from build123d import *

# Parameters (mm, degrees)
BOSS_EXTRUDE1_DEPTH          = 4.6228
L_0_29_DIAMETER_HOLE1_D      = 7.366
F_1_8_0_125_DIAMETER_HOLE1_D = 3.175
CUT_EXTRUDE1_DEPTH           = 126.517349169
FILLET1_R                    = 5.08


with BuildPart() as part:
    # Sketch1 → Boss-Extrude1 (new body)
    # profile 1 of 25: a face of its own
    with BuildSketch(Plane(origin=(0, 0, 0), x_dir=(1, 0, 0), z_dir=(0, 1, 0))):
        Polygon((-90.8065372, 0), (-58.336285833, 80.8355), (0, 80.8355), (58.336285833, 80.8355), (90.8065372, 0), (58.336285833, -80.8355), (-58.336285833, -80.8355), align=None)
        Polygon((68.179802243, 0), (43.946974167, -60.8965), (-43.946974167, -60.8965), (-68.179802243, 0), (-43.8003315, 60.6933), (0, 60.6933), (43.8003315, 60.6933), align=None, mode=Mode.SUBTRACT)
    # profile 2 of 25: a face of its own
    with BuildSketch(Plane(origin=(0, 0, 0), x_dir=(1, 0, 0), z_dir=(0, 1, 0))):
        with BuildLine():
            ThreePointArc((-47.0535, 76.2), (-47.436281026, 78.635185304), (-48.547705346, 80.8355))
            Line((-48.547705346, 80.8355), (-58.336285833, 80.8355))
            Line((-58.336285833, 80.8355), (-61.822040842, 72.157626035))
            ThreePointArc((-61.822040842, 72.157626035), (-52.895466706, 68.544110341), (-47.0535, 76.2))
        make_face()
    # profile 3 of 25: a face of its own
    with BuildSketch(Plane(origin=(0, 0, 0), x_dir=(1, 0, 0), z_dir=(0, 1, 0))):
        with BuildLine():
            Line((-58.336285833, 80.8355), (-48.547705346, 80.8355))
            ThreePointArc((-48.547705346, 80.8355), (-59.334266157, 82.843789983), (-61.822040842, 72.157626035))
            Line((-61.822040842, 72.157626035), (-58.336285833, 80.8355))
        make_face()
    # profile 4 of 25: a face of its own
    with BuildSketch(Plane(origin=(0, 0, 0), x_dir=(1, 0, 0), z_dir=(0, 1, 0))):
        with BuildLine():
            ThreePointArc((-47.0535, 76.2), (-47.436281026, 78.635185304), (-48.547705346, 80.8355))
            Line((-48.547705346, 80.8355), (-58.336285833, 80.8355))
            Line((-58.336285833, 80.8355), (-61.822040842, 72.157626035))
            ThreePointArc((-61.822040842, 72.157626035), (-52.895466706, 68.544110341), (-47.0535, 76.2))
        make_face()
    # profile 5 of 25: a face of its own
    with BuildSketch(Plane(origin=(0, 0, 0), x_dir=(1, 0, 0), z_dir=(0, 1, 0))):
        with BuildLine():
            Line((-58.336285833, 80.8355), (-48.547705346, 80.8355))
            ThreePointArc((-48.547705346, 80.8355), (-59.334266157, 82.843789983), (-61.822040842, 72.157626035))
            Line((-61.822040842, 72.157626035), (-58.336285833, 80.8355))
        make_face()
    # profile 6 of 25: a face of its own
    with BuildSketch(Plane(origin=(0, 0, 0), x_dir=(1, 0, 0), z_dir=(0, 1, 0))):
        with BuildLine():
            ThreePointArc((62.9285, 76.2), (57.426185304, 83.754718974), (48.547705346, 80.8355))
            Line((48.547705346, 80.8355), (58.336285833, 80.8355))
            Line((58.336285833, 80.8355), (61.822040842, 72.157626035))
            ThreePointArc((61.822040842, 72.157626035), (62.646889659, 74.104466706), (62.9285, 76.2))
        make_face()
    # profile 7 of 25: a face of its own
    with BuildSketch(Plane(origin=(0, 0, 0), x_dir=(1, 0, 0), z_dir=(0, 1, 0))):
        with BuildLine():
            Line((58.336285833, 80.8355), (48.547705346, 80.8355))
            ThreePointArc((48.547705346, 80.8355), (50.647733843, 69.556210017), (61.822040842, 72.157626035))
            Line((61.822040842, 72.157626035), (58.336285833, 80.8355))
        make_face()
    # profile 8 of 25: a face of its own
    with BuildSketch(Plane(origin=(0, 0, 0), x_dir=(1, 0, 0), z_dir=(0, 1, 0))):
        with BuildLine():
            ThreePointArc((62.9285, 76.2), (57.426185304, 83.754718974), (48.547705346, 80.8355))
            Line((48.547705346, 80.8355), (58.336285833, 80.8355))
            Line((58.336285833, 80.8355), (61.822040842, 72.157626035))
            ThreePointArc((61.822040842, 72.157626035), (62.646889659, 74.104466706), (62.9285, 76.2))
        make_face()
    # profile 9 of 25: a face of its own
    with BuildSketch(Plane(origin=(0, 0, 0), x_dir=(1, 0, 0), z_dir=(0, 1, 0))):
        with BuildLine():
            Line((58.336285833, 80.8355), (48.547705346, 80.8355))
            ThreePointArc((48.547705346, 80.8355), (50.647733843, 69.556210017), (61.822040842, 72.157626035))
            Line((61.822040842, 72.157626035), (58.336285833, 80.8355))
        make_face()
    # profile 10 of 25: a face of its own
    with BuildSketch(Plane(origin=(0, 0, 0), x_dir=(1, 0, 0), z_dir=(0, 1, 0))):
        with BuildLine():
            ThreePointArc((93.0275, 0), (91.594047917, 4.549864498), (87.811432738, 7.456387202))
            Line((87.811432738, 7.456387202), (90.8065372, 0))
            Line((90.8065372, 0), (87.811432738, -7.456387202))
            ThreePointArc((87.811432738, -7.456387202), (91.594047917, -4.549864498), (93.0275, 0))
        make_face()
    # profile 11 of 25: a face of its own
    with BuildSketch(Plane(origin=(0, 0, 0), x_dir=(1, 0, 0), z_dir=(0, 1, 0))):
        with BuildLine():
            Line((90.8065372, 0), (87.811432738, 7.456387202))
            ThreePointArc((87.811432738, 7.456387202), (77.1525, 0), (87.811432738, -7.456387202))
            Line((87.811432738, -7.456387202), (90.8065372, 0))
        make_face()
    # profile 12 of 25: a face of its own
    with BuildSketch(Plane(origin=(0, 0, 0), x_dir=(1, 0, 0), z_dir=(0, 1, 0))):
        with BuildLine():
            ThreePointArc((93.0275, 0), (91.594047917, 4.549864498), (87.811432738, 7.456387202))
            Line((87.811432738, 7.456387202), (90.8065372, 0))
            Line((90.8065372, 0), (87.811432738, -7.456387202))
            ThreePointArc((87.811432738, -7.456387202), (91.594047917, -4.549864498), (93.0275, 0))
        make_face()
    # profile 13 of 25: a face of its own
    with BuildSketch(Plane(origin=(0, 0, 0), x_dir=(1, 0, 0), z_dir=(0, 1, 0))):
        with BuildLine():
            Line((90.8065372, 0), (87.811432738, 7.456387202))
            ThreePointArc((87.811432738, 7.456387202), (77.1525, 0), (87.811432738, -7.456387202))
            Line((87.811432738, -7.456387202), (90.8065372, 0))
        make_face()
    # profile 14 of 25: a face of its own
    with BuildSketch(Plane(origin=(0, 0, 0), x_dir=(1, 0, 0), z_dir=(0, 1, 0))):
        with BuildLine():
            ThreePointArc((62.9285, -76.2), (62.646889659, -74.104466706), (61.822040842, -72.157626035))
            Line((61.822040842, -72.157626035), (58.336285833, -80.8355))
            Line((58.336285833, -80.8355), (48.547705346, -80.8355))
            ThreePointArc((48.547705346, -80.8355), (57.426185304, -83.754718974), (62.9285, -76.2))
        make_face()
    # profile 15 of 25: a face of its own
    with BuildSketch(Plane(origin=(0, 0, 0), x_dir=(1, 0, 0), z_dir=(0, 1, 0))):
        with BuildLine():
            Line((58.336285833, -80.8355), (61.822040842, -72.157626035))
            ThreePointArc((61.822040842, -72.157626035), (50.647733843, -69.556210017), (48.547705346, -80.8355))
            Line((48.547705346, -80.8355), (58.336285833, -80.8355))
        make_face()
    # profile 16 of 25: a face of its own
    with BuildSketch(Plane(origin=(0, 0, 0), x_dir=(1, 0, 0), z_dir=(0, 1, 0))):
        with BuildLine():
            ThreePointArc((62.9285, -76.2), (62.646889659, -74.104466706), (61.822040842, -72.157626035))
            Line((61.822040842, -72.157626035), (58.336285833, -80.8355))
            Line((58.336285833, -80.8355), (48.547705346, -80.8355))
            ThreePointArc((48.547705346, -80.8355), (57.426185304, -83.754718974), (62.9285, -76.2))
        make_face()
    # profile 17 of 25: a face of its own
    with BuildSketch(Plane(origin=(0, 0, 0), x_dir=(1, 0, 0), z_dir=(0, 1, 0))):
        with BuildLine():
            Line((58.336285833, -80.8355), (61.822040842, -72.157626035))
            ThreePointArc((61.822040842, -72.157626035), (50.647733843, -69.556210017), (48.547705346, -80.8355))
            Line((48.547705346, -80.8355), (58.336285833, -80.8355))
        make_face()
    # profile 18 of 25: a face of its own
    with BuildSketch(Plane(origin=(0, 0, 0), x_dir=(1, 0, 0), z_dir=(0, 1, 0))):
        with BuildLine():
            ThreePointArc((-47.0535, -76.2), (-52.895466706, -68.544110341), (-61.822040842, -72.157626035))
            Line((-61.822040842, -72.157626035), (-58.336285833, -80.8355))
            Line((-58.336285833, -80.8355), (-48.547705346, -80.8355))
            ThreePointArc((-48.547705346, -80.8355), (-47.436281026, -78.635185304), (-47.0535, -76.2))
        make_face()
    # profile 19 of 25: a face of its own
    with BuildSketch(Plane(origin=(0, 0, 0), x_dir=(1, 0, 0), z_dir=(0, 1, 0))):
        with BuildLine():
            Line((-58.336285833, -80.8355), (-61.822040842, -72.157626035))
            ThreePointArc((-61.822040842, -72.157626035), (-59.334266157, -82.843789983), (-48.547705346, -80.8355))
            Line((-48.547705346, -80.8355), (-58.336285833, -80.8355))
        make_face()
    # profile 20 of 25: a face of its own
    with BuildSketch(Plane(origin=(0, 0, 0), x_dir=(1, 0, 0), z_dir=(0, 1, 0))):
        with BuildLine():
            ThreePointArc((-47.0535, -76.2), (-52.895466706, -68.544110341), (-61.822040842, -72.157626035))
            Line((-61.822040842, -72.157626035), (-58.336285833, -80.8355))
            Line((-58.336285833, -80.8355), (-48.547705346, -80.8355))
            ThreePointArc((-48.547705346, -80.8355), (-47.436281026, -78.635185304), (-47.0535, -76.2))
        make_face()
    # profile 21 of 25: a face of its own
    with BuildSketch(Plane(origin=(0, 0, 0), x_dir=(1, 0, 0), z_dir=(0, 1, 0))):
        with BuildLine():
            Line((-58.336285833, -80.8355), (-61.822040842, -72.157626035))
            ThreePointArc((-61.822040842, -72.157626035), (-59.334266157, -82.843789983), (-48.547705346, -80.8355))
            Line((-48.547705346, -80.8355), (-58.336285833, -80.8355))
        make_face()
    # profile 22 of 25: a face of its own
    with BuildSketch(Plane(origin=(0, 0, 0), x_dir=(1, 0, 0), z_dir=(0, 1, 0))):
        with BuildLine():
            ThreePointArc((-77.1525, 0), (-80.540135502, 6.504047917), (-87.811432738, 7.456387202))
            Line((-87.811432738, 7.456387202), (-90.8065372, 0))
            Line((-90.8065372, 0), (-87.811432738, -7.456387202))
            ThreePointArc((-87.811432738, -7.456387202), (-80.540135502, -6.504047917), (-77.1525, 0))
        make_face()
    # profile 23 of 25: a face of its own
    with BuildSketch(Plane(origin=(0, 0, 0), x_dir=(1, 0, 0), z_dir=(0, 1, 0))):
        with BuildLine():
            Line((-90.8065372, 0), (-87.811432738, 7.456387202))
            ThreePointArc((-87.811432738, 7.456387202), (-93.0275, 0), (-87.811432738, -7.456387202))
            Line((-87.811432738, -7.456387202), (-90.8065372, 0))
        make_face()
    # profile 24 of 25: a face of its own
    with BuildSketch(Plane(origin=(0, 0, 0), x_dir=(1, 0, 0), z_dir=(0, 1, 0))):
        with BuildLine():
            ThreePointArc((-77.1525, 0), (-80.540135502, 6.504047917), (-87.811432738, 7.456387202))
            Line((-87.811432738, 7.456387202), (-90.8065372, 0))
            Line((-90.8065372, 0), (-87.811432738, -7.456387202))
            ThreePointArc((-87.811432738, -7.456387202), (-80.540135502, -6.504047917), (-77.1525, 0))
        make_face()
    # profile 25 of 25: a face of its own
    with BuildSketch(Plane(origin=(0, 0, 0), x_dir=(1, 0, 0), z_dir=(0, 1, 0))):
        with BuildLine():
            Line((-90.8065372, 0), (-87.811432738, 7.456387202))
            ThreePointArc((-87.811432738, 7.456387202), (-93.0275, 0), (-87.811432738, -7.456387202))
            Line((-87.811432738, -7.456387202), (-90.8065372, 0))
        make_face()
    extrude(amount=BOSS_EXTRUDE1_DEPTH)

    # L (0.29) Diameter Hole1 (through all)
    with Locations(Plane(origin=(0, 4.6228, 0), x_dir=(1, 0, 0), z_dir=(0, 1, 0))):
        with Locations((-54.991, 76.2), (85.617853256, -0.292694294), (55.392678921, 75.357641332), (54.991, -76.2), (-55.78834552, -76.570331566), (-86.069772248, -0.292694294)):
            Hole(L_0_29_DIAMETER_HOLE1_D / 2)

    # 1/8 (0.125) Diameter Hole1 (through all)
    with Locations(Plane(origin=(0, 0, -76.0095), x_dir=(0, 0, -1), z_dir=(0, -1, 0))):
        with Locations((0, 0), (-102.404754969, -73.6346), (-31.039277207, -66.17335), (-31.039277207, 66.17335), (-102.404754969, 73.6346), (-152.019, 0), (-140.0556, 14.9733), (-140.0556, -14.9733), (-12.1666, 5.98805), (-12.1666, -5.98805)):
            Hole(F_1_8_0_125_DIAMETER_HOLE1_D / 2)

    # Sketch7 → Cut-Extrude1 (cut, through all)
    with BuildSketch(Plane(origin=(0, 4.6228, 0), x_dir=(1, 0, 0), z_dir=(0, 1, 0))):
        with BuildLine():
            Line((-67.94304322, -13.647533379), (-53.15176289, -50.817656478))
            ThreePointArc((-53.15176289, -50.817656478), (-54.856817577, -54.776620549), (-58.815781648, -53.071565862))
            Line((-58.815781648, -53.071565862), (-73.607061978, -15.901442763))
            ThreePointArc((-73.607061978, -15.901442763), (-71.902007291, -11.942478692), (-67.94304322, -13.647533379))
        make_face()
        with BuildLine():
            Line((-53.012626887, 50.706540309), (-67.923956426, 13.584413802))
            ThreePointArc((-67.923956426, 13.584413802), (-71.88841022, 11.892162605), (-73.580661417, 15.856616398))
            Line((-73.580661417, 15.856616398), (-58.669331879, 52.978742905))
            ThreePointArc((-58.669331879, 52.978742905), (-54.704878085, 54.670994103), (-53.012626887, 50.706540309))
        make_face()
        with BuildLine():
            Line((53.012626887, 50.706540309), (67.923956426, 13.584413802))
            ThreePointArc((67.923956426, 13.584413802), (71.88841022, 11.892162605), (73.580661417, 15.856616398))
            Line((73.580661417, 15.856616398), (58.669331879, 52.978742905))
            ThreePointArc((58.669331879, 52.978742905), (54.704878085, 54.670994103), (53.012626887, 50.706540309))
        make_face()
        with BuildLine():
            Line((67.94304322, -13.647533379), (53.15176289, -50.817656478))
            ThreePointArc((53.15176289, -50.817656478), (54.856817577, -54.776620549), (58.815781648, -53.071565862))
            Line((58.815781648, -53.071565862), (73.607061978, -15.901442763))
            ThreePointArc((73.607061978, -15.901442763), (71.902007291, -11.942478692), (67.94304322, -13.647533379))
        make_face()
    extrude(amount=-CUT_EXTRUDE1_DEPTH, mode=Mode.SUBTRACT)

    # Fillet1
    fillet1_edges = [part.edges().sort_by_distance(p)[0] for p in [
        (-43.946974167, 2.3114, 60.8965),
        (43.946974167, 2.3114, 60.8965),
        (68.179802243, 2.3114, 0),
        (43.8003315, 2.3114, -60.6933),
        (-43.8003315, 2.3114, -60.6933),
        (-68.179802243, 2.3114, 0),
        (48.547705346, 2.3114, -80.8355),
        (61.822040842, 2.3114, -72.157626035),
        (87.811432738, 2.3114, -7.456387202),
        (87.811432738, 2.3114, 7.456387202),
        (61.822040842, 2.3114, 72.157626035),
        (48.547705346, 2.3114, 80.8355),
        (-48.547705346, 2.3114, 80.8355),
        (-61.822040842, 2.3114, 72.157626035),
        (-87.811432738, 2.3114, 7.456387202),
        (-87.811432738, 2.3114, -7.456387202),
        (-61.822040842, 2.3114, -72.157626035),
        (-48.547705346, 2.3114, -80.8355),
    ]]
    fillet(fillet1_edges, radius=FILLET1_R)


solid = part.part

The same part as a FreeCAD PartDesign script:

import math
import FreeCAD as App
import Part
import Sketcher
from FreeCAD import Vector
Q = App.Units.Quantity


def edges_at(feature, points):
    """Names of the edges that pass closest to the given points."""
    edges = feature.Shape.Edges
    near = lambda p: min(range(len(edges)), key=lambda i: edges[i].distToShape(Part.Vertex(*p))[0])
    return sorted({f"Edge{near(p) + 1}" for p in points})


def add_polygon(sketch, points):
    """Adds a closed chain of lines whose ends are joined by coincident constraints."""
    first, n = sketch.GeometryCount, len(points)
    for a, b in zip(points, points[1:] + points[:1]):
        sketch.addGeometry(Part.LineSegment(App.Vector(*a, 0), App.Vector(*b, 0)), False)
    for i in range(n):
        sketch.addConstraint(Sketcher.Constraint("Coincident", first + i, 2, first + (i + 1) % n, 1))

doc = App.newDocument("Part")
body = doc.addObject("PartDesign::Body", "Body")

# Sketch on XZ plane
sketch1 = doc.addObject("Sketcher::SketchObject", "Sketch")
body.addObject(sketch1)
sketch1.AttachmentSupport = (doc.XZ_Plane, [""])
sketch1.MapMode = "FlatFace"
sketch1.addGeometry(Part.ArcOfCircle(Part.Circle(Vector(-85.1, 0, 0), Vector(0, 0, 1), 7.9), math.radians(110), math.radians(250)), False)  # 0
sketch1.addGeometry(Part.LineSegment(Vector(-87.8, 7.5, 0), Vector(-61.8, 72.2, 0)), False)  # 1
sketch1.addGeometry(Part.ArcOfCircle(Part.Circle(Vector(-55, 76.2, 0), Vector(0, 0, 1), 7.9), math.radians(36), math.radians(211)), False)  # 2
sketch1.addGeometry(Part.LineSegment(Vector(-48.5, 80.8, 0), Vector(48.5, 80.8, 0)), False)  # 3
sketch1.addGeometry(Part.ArcOfCircle(Part.Circle(Vector(55, 76.2, 0), Vector(0, 0, 1), 7.9), math.radians(0), math.radians(144)), False)  # 4
sketch1.addGeometry(Part.ArcOfCircle(Part.Circle(Vector(55, 76.2, 0), Vector(0, 0, 1), 7.9), math.radians(-31), math.radians(0)), False)  # 5
sketch1.addGeometry(Part.LineSegment(Vector(61.8, 72.2, 0), Vector(87.8, 7.5, 0)), False)  # 6
sketch1.addGeometry(Part.ArcOfCircle(Part.Circle(Vector(85.1, 0, 0), Vector(0, 0, 1), 7.9), math.radians(0), math.radians(70)), False)  # 7
sketch1.addGeometry(Part.ArcOfCircle(Part.Circle(Vector(85.1, 0, 0), Vector(0, 0, 1), 7.9), math.radians(-70), math.radians(0)), False)  # 8
sketch1.addGeometry(Part.LineSegment(Vector(87.8, -7.5, 0), Vector(61.8, -72.2, 0)), False)  # 9
sketch1.addGeometry(Part.ArcOfCircle(Part.Circle(Vector(55, -76.2, 0), Vector(0, 0, 1), 7.9), math.radians(0), math.radians(31)), False)  # 10
sketch1.addGeometry(Part.ArcOfCircle(Part.Circle(Vector(55, -76.2, 0), Vector(0, 0, 1), 7.9), math.radians(-144), math.radians(0)), False)  # 11
sketch1.addGeometry(Part.LineSegment(Vector(48.5, -80.8, 0), Vector(-48.5, -80.8, 0)), False)  # 12
sketch1.addGeometry(Part.ArcOfCircle(Part.Circle(Vector(-55, -76.2, 0), Vector(0, 0, 1), 7.9), math.radians(149), math.radians(324)), False)  # 13
sketch1.addGeometry(Part.LineSegment(Vector(-61.8, -72.2, 0), Vector(-87.8, -7.5, 0)), False)  # 14
add_polygon(sketch1, [(-43.9, 60.9), (-68.2, 0), (-43.8, -60.7), (43.8, -60.7), (68.2, 0), (43.9, 60.9)])  # lines 15-20
sketch1.addConstraint(Sketcher.Constraint("Coincident", 0, 1, 1, 1))
sketch1.addConstraint(Sketcher.Constraint("Coincident", 1, 2, 2, 2))
sketch1.addConstraint(Sketcher.Constraint("Coincident", 2, 1, 3, 1))
sketch1.addConstraint(Sketcher.Constraint("Coincident", 3, 2, 4, 2))
sketch1.addConstraint(Sketcher.Constraint("Tangent", 4, 1, 5, 2))
sketch1.addConstraint(Sketcher.Constraint("Coincident", 5, 1, 6, 1))
sketch1.addConstraint(Sketcher.Constraint("Coincident", 6, 2, 7, 2))
sketch1.addConstraint(Sketcher.Constraint("Tangent", 7, 1, 8, 2))
sketch1.addConstraint(Sketcher.Constraint("Coincident", 8, 1, 9, 1))
sketch1.addConstraint(Sketcher.Constraint("Coincident", 9, 2, 10, 2))
sketch1.addConstraint(Sketcher.Constraint("Tangent", 10, 1, 11, 2))
sketch1.addConstraint(Sketcher.Constraint("Coincident", 11, 1, 12, 1))
sketch1.addConstraint(Sketcher.Constraint("Coincident", 12, 2, 13, 2))
sketch1.addConstraint(Sketcher.Constraint("Coincident", 13, 1, 14, 1))
sketch1.addConstraint(Sketcher.Constraint("Coincident", 14, 2, 0, 2))
sketch1.addConstraint(Sketcher.Constraint("Horizontal", 3))
sketch1.addConstraint(Sketcher.Constraint("Horizontal", 12))
sketch1.addConstraint(Sketcher.Constraint("Horizontal", 17))
sketch1.addConstraint(Sketcher.Constraint("Horizontal", 20))
sketch1.addConstraint(Sketcher.Constraint("Equal", 0, 2))
sketch1.addConstraint(Sketcher.Constraint("Equal", 2, 4))
sketch1.addConstraint(Sketcher.Constraint("Equal", 4, 5))
sketch1.addConstraint(Sketcher.Constraint("Equal", 5, 7))
sketch1.addConstraint(Sketcher.Constraint("Equal", 7, 8))
sketch1.addConstraint(Sketcher.Constraint("Equal", 8, 10))
sketch1.addConstraint(Sketcher.Constraint("Equal", 10, 11))
sketch1.addConstraint(Sketcher.Constraint("Equal", 11, 13))
sketch1.addConstraint(Sketcher.Constraint("Symmetric", 0, 3, 7, 3, -1, 1))
sketch1.addConstraint(Sketcher.Constraint("Symmetric", 2, 3, 10, 3, -1, 1))
sketch1.addConstraint(Sketcher.Constraint("Symmetric", 4, 3, 13, 3, -1, 1))
sketch1.addConstraint(Sketcher.Constraint("Symmetric", 15, 2, 18, 2, -1, 1))
sketch1.addConstraint(Sketcher.Constraint("Symmetric", 2, 3, 4, 3, -2))
sketch1.addConstraint(Sketcher.Constraint("Symmetric", 0, 1, 6, 2, -2))
sketch1.addConstraint(Sketcher.Constraint("PointOnObject", 7, 1, -1))
sketch1.addConstraint(Sketcher.Constraint("PointOnObject", 15, 2, -1))
sketch1.addConstraint(Sketcher.Constraint("Parallel", 1, 9))
sketch1.addConstraint(Sketcher.Constraint("Parallel", 6, 14))
sketch1.addConstraint(Sketcher.Constraint("Parallel", 14, 16))
sketch1.addConstraint(Sketcher.Constraint("Parallel", 9, 18))
sketch1.addConstraint(Sketcher.Constraint("Horizontal", 5, 3, 4, 1))
sketch1.addConstraint(Sketcher.Constraint("Horizontal", 1, 2, 5, 1))
sketch1.addConstraint(Sketcher.Constraint("Horizontal", 13, 3, 10, 1))
sketch1.addConstraint(Sketcher.Constraint("Horizontal", 9, 2, 13, 1))
sketch1.addConstraint(Sketcher.Constraint("Vertical", 6, 2, 8, 1))
sketch1.addConstraint(Sketcher.Constraint("Vertical", 3, 2, 11, 1))
sketch1.addConstraint(Sketcher.Constraint("Equal", 15, 19))
sketch1.addConstraint(Sketcher.Constraint("DistanceY", -1, 1, 2, 3, Q("3 in")))
sketch1.addConstraint(Sketcher.Constraint("Radius", 0, Q("0.3125 in")))
sketch1.addConstraint(Sketcher.Constraint("DistanceX", 0, 3, 7, 3, Q("6.7 in")))
sketch1.addConstraint(Sketcher.Constraint("DistanceX", 2, 3, 4, 3, Q("4.33 in")))
sketch1.addConstraint(Sketcher.Constraint("DistanceY", 12, 2, 16, 2, Q("0.793 in")))
sketch1.addConstraint(Sketcher.Constraint("DistanceY", 19, 2, 3, 2, Q("0.785 in")))
sketch1.addConstraint(Sketcher.Constraint("DistanceY", -1, 1, 2, 1, Q("3.1825 in")))
sketch1.addConstraint(Sketcher.Constraint("DistanceX", 20, 2, 20, 1, 87.893948))
sketch1.addConstraint(Sketcher.Constraint("DistanceX", 14, 2, 16, 2, 44.011101))
sketch1.addConstraint(Sketcher.Constraint("Distance", 15, 65.540931))
sketch1.addConstraint(Sketcher.Constraint("Distance", 16, 65.406691))
pad1 = doc.addObject("PartDesign::Pad", "Pad")
body.addObject(pad1)
pad1.Profile = sketch1
pad1.Length = Q("0.182 in")
pad1.Reversed = True

# Sketch on XZ plane
sketch2 = doc.addObject("Sketcher::SketchObject", "Sketch001")
body.addObject(sketch2)
sketch2.AttachmentSupport = (doc.XZ_Plane, [""])
sketch2.MapMode = "FlatFace"
sketch2.AttachmentOffset = App.Placement(Vector(0, 0, -0.182 * 25.4), App.Rotation())
sketch2.addGeometry(Part.Circle(Vector(-55, -76.2, 0), Vector(0, 0, 1), 3.7), False)
sketch2.addGeometry(Part.Circle(Vector(85.6, 0.3, 0), Vector(0, 0, 1), 3.7), False)
sketch2.addGeometry(Part.Circle(Vector(55.4, -75.4, 0), Vector(0, 0, 1), 3.7), False)
sketch2.addGeometry(Part.Circle(Vector(55, 76.2, 0), Vector(0, 0, 1), 3.7), False)
sketch2.addGeometry(Part.Circle(Vector(-55.8, 76.6, 0), Vector(0, 0, 1), 3.7), False)
sketch2.addGeometry(Part.Circle(Vector(-86.1, 0.3, 0), Vector(0, 0, 1), 3.7), False)
sketch2.addConstraint(Sketcher.Constraint("Equal", 0, 1))
sketch2.addConstraint(Sketcher.Constraint("Equal", 1, 2))
sketch2.addConstraint(Sketcher.Constraint("Equal", 2, 3))
sketch2.addConstraint(Sketcher.Constraint("Equal", 3, 4))
sketch2.addConstraint(Sketcher.Constraint("Equal", 4, 5))
sketch2.addConstraint(Sketcher.Constraint("Symmetric", 0, 3, 3, 3, -1, 1))
sketch2.addConstraint(Sketcher.Constraint("Horizontal", 1, 3, 5, 3))
sketch2.addConstraint(Sketcher.Constraint("Diameter", 0, Q("0.29 in")))
sketch2.addConstraint(Sketcher.Constraint("DistanceY", 0, 3, -1, 1, Q("3 in")))
sketch2.addConstraint(Sketcher.Constraint("DistanceX", 0, 3, 3, 3, Q("4.33 in")))
sketch2.addConstraint(Sketcher.Constraint("DistanceX", 4, 3, 1, 3, 141.406199))
sketch2.addConstraint(Sketcher.Constraint("DistanceX", -1, 1, 2, 3, 55.392679))
sketch2.addConstraint(Sketcher.Constraint("DistanceY", 2, 3, -1, 1, 75.357641))
sketch2.addConstraint(Sketcher.Constraint("DistanceY", -1, 1, 4, 3, 76.570332))
sketch2.addConstraint(Sketcher.Constraint("DistanceX", 5, 3, 2, 3, 141.462451))
sketch2.addConstraint(Sketcher.Constraint("DistanceX", -1, 1, 1, 3, 85.617853))
sketch2.addConstraint(Sketcher.Constraint("DistanceY", -1, 1, 1, 3, 0.292694))
doc.recompute()
hole = doc.addObject("PartDesign::Hole", "Hole")
body.addObject(hole)
hole.Profile = sketch2
hole.ThreadType = "None"
hole.Diameter = Q("0.29 in")
hole.DepthType = "ThroughAll"
hole.Reversed = True

# Sketch on XZ plane
sketch3 = doc.addObject("Sketcher::SketchObject", "Sketch002")
body.addObject(sketch3)
sketch3.AttachmentSupport = (doc.XZ_Plane, [""])
sketch3.MapMode = "FlatFace"
sketch3.addGeometry(Part.Circle(Vector(0, -76, 0), Vector(0, 0, 1), 1.6), False)
sketch3.addGeometry(Part.Circle(Vector(-73.6, 26.4, 0), Vector(0, 0, 1), 1.6), False)
sketch3.addGeometry(Part.Circle(Vector(-66.2, -45, 0), Vector(0, 0, 1), 1.6), False)
sketch3.addGeometry(Part.Circle(Vector(66.2, -45, 0), Vector(0, 0, 1), 1.6), False)
sketch3.addGeometry(Part.Circle(Vector(73.6, 26.4, 0), Vector(0, 0, 1), 1.6), False)
sketch3.addGeometry(Part.Circle(Vector(0, 76, 0), Vector(0, 0, 1), 1.6), False)
sketch3.addGeometry(Part.Circle(Vector(15, 64, 0), Vector(0, 0, 1), 1.6), False)
sketch3.addGeometry(Part.Circle(Vector(-15, 64, 0), Vector(0, 0, 1), 1.6), False)
sketch3.addGeometry(Part.Circle(Vector(6, -63.8, 0), Vector(0, 0, 1), 1.6), False)
sketch3.addGeometry(Part.Circle(Vector(-6, -63.8, 0), Vector(0, 0, 1), 1.6), False)
sketch3.addConstraint(Sketcher.Constraint("Equal", 0, 1))
sketch3.addConstraint(Sketcher.Constraint("Equal", 1, 2))
sketch3.addConstraint(Sketcher.Constraint("Equal", 2, 3))
sketch3.addConstraint(Sketcher.Constraint("Equal", 3, 4))
sketch3.addConstraint(Sketcher.Constraint("Equal", 4, 5))
sketch3.addConstraint(Sketcher.Constraint("Equal", 5, 6))
sketch3.addConstraint(Sketcher.Constraint("Equal", 6, 7))
sketch3.addConstraint(Sketcher.Constraint("Equal", 7, 8))
sketch3.addConstraint(Sketcher.Constraint("Equal", 8, 9))
sketch3.addConstraint(Sketcher.Constraint("Symmetric", 0, 3, 5, 3, -1, 1))
sketch3.addConstraint(Sketcher.Constraint("Symmetric", 2, 3, 3, 3, -2))
sketch3.addConstraint(Sketcher.Constraint("Symmetric", 1, 3, 4, 3, -2))
sketch3.addConstraint(Sketcher.Constraint("Symmetric", 6, 3, 7, 3, -2))
sketch3.addConstraint(Sketcher.Constraint("Symmetric", 8, 3, 9, 3, -2))
sketch3.addConstraint(Sketcher.Constraint("PointOnObject", 0, 3, -2))
sketch3.addConstraint(Sketcher.Constraint("Diameter", 0, Q("0.125 in")))
sketch3.addConstraint(Sketcher.Constraint("DistanceX", 1, 3, -1, 1, Q("2.899 in")))
sketch3.addConstraint(Sketcher.Constraint("DistanceY", 0, 3, 5, 3, Q("5.985 in")))
sketch3.addConstraint(Sketcher.Constraint("DistanceY", 6, 3, 5, 3, Q("0.471 in")))
sketch3.addConstraint(Sketcher.Constraint("DistanceX", 7, 3, 6, 3, Q("1.179 in")))
sketch3.addConstraint(Sketcher.Constraint("DistanceY", 0, 3, 8, 3, Q("0.479 in")))
sketch3.addConstraint(Sketcher.Constraint("DistanceX", 2, 3, 8, 3, Q("2.841 in")))
sketch3.addConstraint(Sketcher.Constraint("DistanceX", 2, 3, 3, 3, Q("5.2105 in")))
sketch3.addConstraint(Sketcher.Constraint("DistanceY", -1, 1, 1, 3, 26.395255))
sketch3.addConstraint(Sketcher.Constraint("DistanceY", 2, 3, -1, 1, 44.970223))
doc.recompute()
hole2 = doc.addObject("PartDesign::Hole", "Hole001")
body.addObject(hole2)
hole2.Profile = sketch3
hole2.ThreadType = "None"
hole2.Diameter = Q("0.125 in")
hole2.DepthType = "ThroughAll"

# Sketch on XZ plane
sketch4 = doc.addObject("Sketcher::SketchObject", "Sketch003")
body.addObject(sketch4)
sketch4.AttachmentSupport = (doc.XZ_Plane, [""])
sketch4.MapMode = "FlatFace"
sketch4.AttachmentOffset = App.Placement(Vector(0, 0, -0.182 * 25.4), App.Rotation())
sketch4.addGeometry(Part.LineSegment(Vector(-53.2, 50.8, 0), Vector(-67.9, 13.6, 0)), False)
sketch4.addGeometry(Part.ArcOfCircle(Part.Circle(Vector(-70.8, 14.8, 0), Vector(0, 0, 1), 3), math.radians(158), math.radians(338)), False)
sketch4.addGeometry(Part.LineSegment(Vector(-73.6, 15.9, 0), Vector(-58.8, 53.1, 0)), False)
sketch4.addGeometry(Part.ArcOfCircle(Part.Circle(Vector(-56, 51.9, 0), Vector(0, 0, 1), 3), math.radians(-22), math.radians(158)), False)
sketch4.addGeometry(Part.LineSegment(Vector(-67.9, -13.6, 0), Vector(-53, -50.7, 0)), False)
sketch4.addGeometry(Part.ArcOfCircle(Part.Circle(Vector(-55.8, -51.8, 0), Vector(0, 0, 1), 3), math.radians(-158), math.radians(22)), False)
sketch4.addGeometry(Part.LineSegment(Vector(-58.7, -53, 0), Vector(-73.6, -15.9, 0)), False)
sketch4.addGeometry(Part.ArcOfCircle(Part.Circle(Vector(-70.8, -14.7, 0), Vector(0, 0, 1), 3), math.radians(22), math.radians(202)), False)
sketch4.addGeometry(Part.LineSegment(Vector(53, -50.7, 0), Vector(67.9, -13.6, 0)), False)
sketch4.addGeometry(Part.ArcOfCircle(Part.Circle(Vector(70.8, -14.7, 0), Vector(0, 0, 1), 3), math.radians(-22), math.radians(158)), False)
sketch4.addGeometry(Part.LineSegment(Vector(73.6, -15.9, 0), Vector(58.7, -53, 0)), False)
sketch4.addGeometry(Part.ArcOfCircle(Part.Circle(Vector(55.8, -51.8, 0), Vector(0, 0, 1), 3), math.radians(158), math.radians(338)), False)
sketch4.addGeometry(Part.LineSegment(Vector(67.9, 13.6, 0), Vector(53.2, 50.8, 0)), False)
sketch4.addGeometry(Part.ArcOfCircle(Part.Circle(Vector(56, 51.9, 0), Vector(0, 0, 1), 3), math.radians(22), math.radians(202)), False)
sketch4.addGeometry(Part.LineSegment(Vector(58.8, 53.1, 0), Vector(73.6, 15.9, 0)), False)
sketch4.addGeometry(Part.ArcOfCircle(Part.Circle(Vector(70.8, 14.8, 0), Vector(0, 0, 1), 3), math.radians(-158), math.radians(22)), False)
sketch4.addConstraint(Sketcher.Constraint("Tangent", 0, 2, 1, 2))
sketch4.addConstraint(Sketcher.Constraint("Tangent", 1, 1, 2, 1))
sketch4.addConstraint(Sketcher.Constraint("Tangent", 2, 2, 3, 2))
sketch4.addConstraint(Sketcher.Constraint("Tangent", 3, 1, 0, 1))
sketch4.addConstraint(Sketcher.Constraint("Tangent", 4, 2, 5, 2))
sketch4.addConstraint(Sketcher.Constraint("Tangent", 5, 1, 6, 1))
sketch4.addConstraint(Sketcher.Constraint("Tangent", 6, 2, 7, 2))
sketch4.addConstraint(Sketcher.Constraint("Tangent", 7, 1, 4, 1))
sketch4.addConstraint(Sketcher.Constraint("Tangent", 8, 2, 9, 2))
sketch4.addConstraint(Sketcher.Constraint("Tangent", 9, 1, 10, 1))
sketch4.addConstraint(Sketcher.Constraint("Tangent", 10, 2, 11, 2))
sketch4.addConstraint(Sketcher.Constraint("Tangent", 11, 1, 8, 1))
sketch4.addConstraint(Sketcher.Constraint("Tangent", 12, 2, 13, 2))
sketch4.addConstraint(Sketcher.Constraint("Tangent", 13, 1, 14, 1))
sketch4.addConstraint(Sketcher.Constraint("Tangent", 14, 2, 15, 2))
sketch4.addConstraint(Sketcher.Constraint("Tangent", 15, 1, 12, 1))
sketch4.addConstraint(Sketcher.Constraint("Equal", 1, 3))
sketch4.addConstraint(Sketcher.Constraint("Equal", 3, 5))
sketch4.addConstraint(Sketcher.Constraint("Equal", 5, 7))
sketch4.addConstraint(Sketcher.Constraint("Equal", 7, 9))
sketch4.addConstraint(Sketcher.Constraint("Equal", 9, 11))
sketch4.addConstraint(Sketcher.Constraint("Equal", 11, 13))
sketch4.addConstraint(Sketcher.Constraint("Equal", 13, 15))
sketch4.addConstraint(Sketcher.Constraint("Symmetric", 7, 3, 9, 3, -2))
sketch4.addConstraint(Sketcher.Constraint("Symmetric", 5, 3, 11, 3, -2))
sketch4.addConstraint(Sketcher.Constraint("Symmetric", 3, 3, 13, 3, -2))
sketch4.addConstraint(Sketcher.Constraint("Symmetric", 1, 3, 15, 3, -2))
sketch4.addConstraint(Sketcher.Constraint("Equal", 2, 4))
sketch4.addConstraint(Sketcher.Constraint("Radius", 1, Q("0.12 in")))
sketch4.addConstraint(Sketcher.Constraint("Distance", 0, Q("1.575 in")))
sketch4.addConstraint(Sketcher.Constraint("DistanceX", 1, 1, 3, 1, 20.455299))
sketch4.addConstraint(Sketcher.Constraint("DistanceY", 5, 3, 4, 2, 1.136101))
sketch4.addConstraint(Sketcher.Constraint("DistanceX", 1, 1, 6, 2, 0.026401))
sketch4.addConstraint(Sketcher.Constraint("DistanceY", 7, 1, 1, 3, 28.358902))
sketch4.addConstraint(Sketcher.Constraint("DistanceY", -1, 1, 1, 3, 14.774488))
sketch4.addConstraint(Sketcher.Constraint("DistanceX", 5, 3, -1, 1, 55.840979))
pocket1 = doc.addObject("PartDesign::Pocket", "Pocket")
body.addObject(pocket1)
pocket1.Profile = sketch4
pocket1.Type = "ThroughAll"
pocket1.Reversed = True
doc.recompute()

fillet = doc.addObject("PartDesign::Fillet", "Fillet")
body.addObject(fillet)
fillet.Base = (pocket1, edges_at(pocket1, [
    (-43.947, 2.311, 60.897),
    (43.947, 2.311, 60.897),
    (68.18, 2.311, 0),
    (43.8, 2.311, -60.693),
    (-43.8, 2.311, -60.693),
    (-68.18, 2.311, 0),
    (48.548, 2.311, -80.835),
    (61.822, 2.311, -72.158),
    (87.811, 2.311, -7.456),
    (87.811, 2.311, 7.456),
    (61.822, 2.311, 72.158),
    (48.548, 2.311, 80.835),
    (-48.548, 2.311, 80.835),
    (-61.822, 2.311, 72.158),
    (-87.811, 2.311, 7.456),
    (-87.811, 2.311, -7.456),
    (-61.822, 2.311, -72.158),
    (-48.548, 2.311, -80.835),
]))
fillet.Radius = Q("0.2 in")

doc.recompute()
